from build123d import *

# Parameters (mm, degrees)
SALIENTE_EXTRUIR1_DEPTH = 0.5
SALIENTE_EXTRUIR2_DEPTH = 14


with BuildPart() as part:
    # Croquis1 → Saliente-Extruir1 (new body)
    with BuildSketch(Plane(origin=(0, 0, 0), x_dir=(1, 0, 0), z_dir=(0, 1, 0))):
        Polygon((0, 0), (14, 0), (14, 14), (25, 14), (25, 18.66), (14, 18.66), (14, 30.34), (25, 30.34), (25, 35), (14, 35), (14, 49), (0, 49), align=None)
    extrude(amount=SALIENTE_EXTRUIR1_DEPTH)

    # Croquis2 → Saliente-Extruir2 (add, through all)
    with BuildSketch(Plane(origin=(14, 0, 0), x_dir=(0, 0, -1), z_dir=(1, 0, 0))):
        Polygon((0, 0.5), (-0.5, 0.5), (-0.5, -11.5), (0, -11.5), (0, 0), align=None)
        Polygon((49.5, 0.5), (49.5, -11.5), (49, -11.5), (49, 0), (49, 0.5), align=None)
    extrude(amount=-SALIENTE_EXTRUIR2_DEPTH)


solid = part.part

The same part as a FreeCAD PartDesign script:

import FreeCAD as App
import Part
import Sketcher

V = App.Vector
Q = App.Units.Quantity


def add_polygon(sketch, points):
    """Adds a closed chain of lines whose ends are joined by coincident constraints."""
    first, n = sketch.GeometryCount, len(points)
    for a, b in zip(points, points[1:] + points[:1]):
        sketch.addGeometry(Part.LineSegment(App.Vector(*a, 0), App.Vector(*b, 0)), False)
    for i in range(n):
        sketch.addConstraint(Sketcher.Constraint("Coincident", first + i, 2, first + (i + 1) % n, 1))

doc = App.newDocument("Part")
body = doc.addObject("PartDesign::Body", "Body")

sketch1 = body.newObject("Sketcher::SketchObject", "Sketch")
sketch1.AttachmentSupport = (doc.getObject("XZ_Plane"), [""])
sketch1.MapMode = "FlatFace"
add_polygon(sketch1, [(0, 0), (14, 0), (14, -14), (25, -14), (25, -18.7), (14, -18.7), (14, -30.3), (25, -30.3), (25, -35), (14, -35), (14, -49), (0, -49)])
sketch1.addConstraint([
    Sketcher.Constraint("Horizontal", 0),
    Sketcher.Constraint("Vertical", 1),
    Sketcher.Constraint("Horizontal", 2),
    Sketcher.Constraint("Vertical", 3),
    Sketcher.Constraint("Horizontal", 4),
    Sketcher.Constraint("Vertical", 5),
    Sketcher.Constraint("Horizontal", 6),
    Sketcher.Constraint("Vertical", 7),
    Sketcher.Constraint("Horizontal", 8),
    Sketcher.Constraint("Vertical", 9),
    Sketcher.Constraint("Horizontal", 10),
    Sketcher.Constraint("Vertical", 11),
    Sketcher.Constraint("Coincident", 11, 2, -1, 1),
    Sketcher.Constraint("Vertical", 1, 2, 4, 2),
    Sketcher.Constraint("Vertical", 3, 2, 6, 2),
    Sketcher.Constraint("Vertical", 5, 2, 8, 2),
    Sketcher.Constraint("Equal", 10, 1),
    Sketcher.Constraint("Equal", 3, 7),
    Sketcher.Constraint("Equal", 1, 9),
    Sketcher.Constraint("DistanceX", 0, 1, 0, 2, Q("14 mm")),
    Sketcher.Constraint("DistanceX", 2, 1, 2, 2, Q("11 mm")),
    Sketcher.Constraint("DistanceY", 11, 1, 11, 2, Q("49 mm")),
    Sketcher.Constraint("DistanceY", 3, 2, 3, 1, Q("4.66 mm")),
])
pad1 = body.newObject("PartDesign::Pad", "Pad")
pad1.Profile = sketch1
pad1.Length = 0.5
pad1.Reversed = True

sketch2 = body.newObject("Sketcher::SketchObject", "Sketch001")
sketch2.AttachmentSupport = (doc.getObject("YZ_Plane"), [""])
sketch2.MapMode = "FlatFace"
sketch2.AttachmentOffset = App.Placement(V(0, 0, 14), App.Rotation())
add_polygon(sketch2, [(0.5, 0), (0.5, 0.5), (-11.5, 0.5), (-11.5, 0)])
add_polygon(sketch2, [(-11.5, -49.5), (0.5, -49.5), (0.5, -49), (-11.5, -49)])
sketch2.addConstraint([
    Sketcher.Constraint("Vertical", 0),
    Sketcher.Constraint("Horizontal", 1),
    Sketcher.Constraint("Vertical", 2),
    Sketcher.Constraint("Horizontal", 3),
    Sketcher.Constraint("Horizontal", 4),
    Sketcher.Constraint("Vertical", 5),
    Sketcher.Constraint("Horizontal", 6),
    Sketcher.Constraint("Vertical", 7),
    Sketcher.Constraint("PointOnObject", 2, 2, -1),
    Sketcher.Constraint("Vertical", 3, 2, 4, 2),
    Sketcher.Constraint("Vertical", 2, 2, 6, 2),
    Sketcher.Constraint("Equal", 2, 5),
    Sketcher.Constraint("DistanceX", 1, 2, 1, 1, Q("12 mm")),
    Sketcher.Constraint("DistanceY", 0, 1, 0, 2, Q("0.5 mm")),
    Sketcher.Constraint("DistanceY", 5, 2, -1, 1, Q("49 mm")),
    Sketcher.Constraint("DistanceX", -1, 1, 0, 2, Q("0.5 mm")),
])
pad2 = body.newObject("PartDesign::Pad", "Pad001")
pad2.Profile = sketch2
pad2.Length = 14
pad2.Reversed = True

doc.recompute()
